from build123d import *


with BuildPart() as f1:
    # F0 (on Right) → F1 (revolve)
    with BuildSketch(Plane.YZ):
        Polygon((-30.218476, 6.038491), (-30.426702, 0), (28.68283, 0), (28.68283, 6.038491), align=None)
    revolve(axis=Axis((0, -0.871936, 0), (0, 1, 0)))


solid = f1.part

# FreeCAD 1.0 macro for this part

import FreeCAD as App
import Part
import Sketcher

V = App.Vector
Q = App.Units.Quantity


def add_polygon(sketch, points):
    """Adds a closed chain of lines whose ends are joined by coincident constraints."""
    first, n = sketch.GeometryCount, len(points)
    for a, b in zip(points, points[1:] + points[:1]):
        sketch.addGeometry(Part.LineSegment(App.Vector(*a, 0), App.Vector(*b, 0)), False)
    for i in range(n):
        sketch.addConstraint(Sketcher.Constraint("Coincident", first + i, 2, first + (i + 1) % n, 1))

doc = App.newDocument("Part")
body = doc.addObject("PartDesign::Body", "Body")

sketch1 = body.newObject("Sketcher::SketchObject", "Sketch")
sketch1.AttachmentSupport = (doc.getObject("YZ_Plane"), [""])
sketch1.MapMode = "FlatFace"
add_polygon(sketch1, [(-30.218476, 6.038491), (-30.426702, 0), (28.68283, 0), (28.68283, 6.038491)])
sketch1.addConstraint([
    Sketcher.Constraint("Horizontal", 1),
    Sketcher.Constraint("Vertical", 2),
    Sketcher.Constraint("Horizontal", 3),
    Sketcher.Constraint("PointOnObject", 0, 2, -1),
    Sketcher.Constraint("DistanceY", 2, 1, 2, 2, Q("6.038491 mm")),
    Sketcher.Constraint("DistanceX", 0, 2, -1, 1, Q("30.426702 mm")),
    Sketcher.Constraint("Distance", 0, Q("6.04208 mm")),
    Sketcher.Constraint("DistanceX", 1, 1, 1, 2, Q("59.109532 mm")),
])
revolution = body.newObject("PartDesign::Revolution", "Revolution")
revolution.Profile = sketch1
revolution.ReferenceAxis = (sketch1, ["H_Axis"])
revolution.Angle = 360

doc.recompute()
